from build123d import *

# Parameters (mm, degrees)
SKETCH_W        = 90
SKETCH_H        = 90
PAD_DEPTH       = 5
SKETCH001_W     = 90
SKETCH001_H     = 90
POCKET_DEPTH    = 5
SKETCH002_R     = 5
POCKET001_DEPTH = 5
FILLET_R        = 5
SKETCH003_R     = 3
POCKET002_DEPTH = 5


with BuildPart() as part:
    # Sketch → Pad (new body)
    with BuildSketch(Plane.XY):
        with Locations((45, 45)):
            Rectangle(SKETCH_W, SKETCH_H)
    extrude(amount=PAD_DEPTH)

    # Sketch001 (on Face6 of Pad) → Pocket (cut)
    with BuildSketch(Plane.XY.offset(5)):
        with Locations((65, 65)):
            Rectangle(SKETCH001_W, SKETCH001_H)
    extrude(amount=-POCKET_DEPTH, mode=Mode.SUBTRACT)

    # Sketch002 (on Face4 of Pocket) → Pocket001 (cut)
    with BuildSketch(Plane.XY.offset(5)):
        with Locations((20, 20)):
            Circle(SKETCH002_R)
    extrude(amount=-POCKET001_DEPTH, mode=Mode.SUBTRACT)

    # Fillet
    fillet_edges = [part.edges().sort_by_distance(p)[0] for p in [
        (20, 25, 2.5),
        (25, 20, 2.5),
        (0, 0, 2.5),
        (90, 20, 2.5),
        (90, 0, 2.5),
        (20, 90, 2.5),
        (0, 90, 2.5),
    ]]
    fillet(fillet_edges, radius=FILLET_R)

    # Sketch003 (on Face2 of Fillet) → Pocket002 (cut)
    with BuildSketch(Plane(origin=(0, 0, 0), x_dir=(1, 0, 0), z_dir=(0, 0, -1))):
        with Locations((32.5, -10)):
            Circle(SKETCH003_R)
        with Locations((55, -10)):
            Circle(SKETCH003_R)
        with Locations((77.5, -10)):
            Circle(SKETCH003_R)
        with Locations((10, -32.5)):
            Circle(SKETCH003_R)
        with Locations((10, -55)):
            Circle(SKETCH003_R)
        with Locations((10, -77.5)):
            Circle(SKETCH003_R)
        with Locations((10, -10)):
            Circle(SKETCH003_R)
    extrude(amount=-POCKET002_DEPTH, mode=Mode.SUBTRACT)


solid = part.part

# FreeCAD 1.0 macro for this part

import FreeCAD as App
import Part
import Sketcher

V = App.Vector


def edges_at(feature, points):
    """Names of the edges that pass closest to the given points."""
    edges = feature.Shape.Edges
    near = lambda p: min(range(len(edges)), key=lambda i: edges[i].distToShape(Part.Vertex(*p))[0])
    return sorted({f"Edge{near(p) + 1}" for p in points})


def add_polygon(sketch, points):
    """Adds a closed chain of lines whose ends are joined by coincident constraints."""
    first, n = sketch.GeometryCount, len(points)
    for a, b in zip(points, points[1:] + points[:1]):
        sketch.addGeometry(Part.LineSegment(App.Vector(*a, 0), App.Vector(*b, 0)), False)
    for i in range(n):
        sketch.addConstraint(Sketcher.Constraint("Coincident", first + i, 2, first + (i + 1) % n, 1))

doc = App.newDocument("Part")
params = doc.addObject("Spreadsheet::Sheet", "Params")
for row, (alias, value) in enumerate([
    ("sketch1_width", "90 mm"),
    ("pad1_length", "5 mm"),
    ("sketch2_width", "90 mm"),
    ("pocket1_length", "5 mm"),
    ("sketch3_diameter", "10 mm"),
    ("pocket2_length", "5 mm"),
    ("fillet_radius", "5 mm"),
    ("sketch4_diameter", "6 mm"),
    ("pocket3_length", "5 mm"),
], start=1):
    params.set(f"A{row}", alias)
    params.set(f"B{row}", "=" + value)
    params.setAlias(f"B{row}", alias)

body = doc.addObject("PartDesign::Body", "Body")

# Sketch on XY plane
sketch1 = body.newObject("Sketcher::SketchObject", "Sketch")
sketch1.AttachmentSupport = (doc.getObject("XY_Plane"), [""])
sketch1.MapMode = "FlatFace"
add_polygon(sketch1, [(0, 90), (0, 0), (90, 0), (90, 90)])  # lines 0-3
sketch1.addConstraint([
    Sketcher.Constraint("Vertical", 0),
    Sketcher.Constraint("Horizontal", 1),
    Sketcher.Constraint("Vertical", 2),
    Sketcher.Constraint("Horizontal", 3),
    Sketcher.Constraint("Coincident", 0, 2, -1, 1),
    Sketcher.Constraint("Equal", 3, 0),
    Sketcher.Constraint("DistanceX", 1, 1, 1, 2, 90.0),
])
sketch1.setExpression("Constraints[10]", "Params.sketch1_width")
pad1 = body.newObject("PartDesign::Pad", "Pad")
pad1.Profile = sketch1
pad1.setExpression("Length", "Params.pad1_length")

# Sketch on XY plane
sketch2 = body.newObject("Sketcher::SketchObject", "Sketch001")
sketch2.AttachmentSupport = (doc.getObject("XY_Plane"), [""])
sketch2.MapMode = "FlatFace"
sketch2.AttachmentOffset = App.Placement(V(0, 0, 5), App.Rotation())
add_polygon(sketch2, [(20, 110), (20, 20), (110, 20), (110, 110)])  # lines 0-3
sketch2.addConstraint([
    Sketcher.Constraint("Vertical", 0),
    Sketcher.Constraint("Horizontal", 1),
    Sketcher.Constraint("Vertical", 2),
    Sketcher.Constraint("Horizontal", 3),
    Sketcher.Constraint("Equal", 3, 0),
    Sketcher.Constraint("DistanceX", 1, 1, 1, 2, 90.0),
    Sketcher.Constraint("DistanceX", -1, 1, 0, 2, 20.0),
    Sketcher.Constraint("DistanceY", -1, 1, 0, 2, 20.0),
])
sketch2.setExpression("Constraints[9]", "Params.sketch2_width")
pocket1 = body.newObject("PartDesign::Pocket", "Pocket")
pocket1.Profile = sketch2
pocket1.setExpression("Length", "Params.pocket1_length")

# Sketch on XY plane
sketch3 = body.newObject("Sketcher::SketchObject", "Sketch002")
sketch3.AttachmentSupport = (doc.getObject("XY_Plane"), [""])
sketch3.MapMode = "FlatFace"
sketch3.AttachmentOffset = App.Placement(V(0, 0, 5), App.Rotation())
sketch3.addGeometry(Part.Circle(V(20, 20, 0), V(0, 0, 1), 5), False)
sketch3.addConstraint([
    Sketcher.Constraint("Diameter", 0, 10.0),
    Sketcher.Constraint("DistanceX", -1, 1, 0, 3, 20.0),
    Sketcher.Constraint("DistanceY", -1, 1, 0, 3, 20.0),
])
sketch3.setExpression("Constraints[0]", "Params.sketch3_diameter")
pocket2 = body.newObject("PartDesign::Pocket", "Pocket001")
pocket2.Profile = sketch3
pocket2.setExpression("Length", "Params.pocket2_length")
doc.recompute()

fillet = body.newObject("PartDesign::Fillet", "Fillet")
fillet.Base = (pocket2, edges_at(pocket2, [
    (20, 25, 2.5),
    (25, 20, 2.5),
    (0, 0, 2.5),
    (90, 20, 2.5),
    (90, 0, 2.5),
    (20, 90, 2.5),
    (0, 90, 2.5),
]))
fillet.setExpression("Radius", "Params.fillet_radius")

# Sketch on XY plane
sketch4 = body.newObject("Sketcher::SketchObject", "Sketch003")
sketch4.AttachmentSupport = (doc.getObject("XY_Plane"), [""])
sketch4.MapMode = "FlatFace"
sketch4.addGeometry([
    Part.Circle(V(32.5, 10, 0), V(0, 0, 1), 3),  # 0
    Part.Circle(V(55, 10, 0), V(0, 0, 1), 3),  # 1
    Part.Circle(V(77.5, 10, 0), V(0, 0, 1), 3),  # 2
    Part.Circle(V(10, 32.5, 0), V(0, 0, 1), 3),  # 3
    Part.Circle(V(10, 55, 0), V(0, 0, 1), 3),  # 4
    Part.Circle(V(10, 77.5, 0), V(0, 0, 1), 3),  # 5
    Part.Circle(V(10, 10, 0), V(0, 0, 1), 3),  # 6
], False)
sketch4.addConstraint([
    Sketcher.Constraint("Equal", 0, 1),
    Sketcher.Constraint("Equal", 1, 2),
    Sketcher.Constraint("Equal", 2, 3),
    Sketcher.Constraint("Equal", 3, 4),
    Sketcher.Constraint("Equal", 4, 5),
    Sketcher.Constraint("Equal", 5, 6),
    Sketcher.Constraint("Horizontal", 0, 3, 1, 3),
    Sketcher.Constraint("Horizontal", 1, 3, 2, 3),
    Sketcher.Constraint("Horizontal", 2, 3, 6, 3),
    Sketcher.Constraint("Vertical", 3, 3, 4, 3),
    Sketcher.Constraint("Vertical", 4, 3, 5, 3),
    Sketcher.Constraint("Vertical", 5, 3, 6, 3),
    Sketcher.Constraint("Diameter", 0, 6.0),
    Sketcher.Constraint("DistanceY", -1, 1, 0, 3, 10.0),
    Sketcher.Constraint("DistanceX", -1, 1, 1, 3, 55.0),
    Sketcher.Constraint("DistanceX", -1, 1, 3, 3, 10.0),
    Sketcher.Constraint("DistanceY", -1, 1, 4, 3, 55.0),
    Sketcher.Constraint("DistanceX", 0, 3, 2, 3, 45.0),
    Sketcher.Constraint("DistanceY", 3, 3, 5, 3, 45.0),
    Sketcher.Constraint("DistanceX", -1, 1, 0, 3, 32.5),
    Sketcher.Constraint("DistanceY", -1, 1, 3, 3, 32.5),
])
sketch4.setExpression("Constraints[12]", "Params.sketch4_diameter")
pocket3 = body.newObject("PartDesign::Pocket", "Pocket002")
pocket3.Profile = sketch4
pocket3.setExpression("Length", "Params.pocket3_length")
pocket3.Reversed = True

doc.recompute()
